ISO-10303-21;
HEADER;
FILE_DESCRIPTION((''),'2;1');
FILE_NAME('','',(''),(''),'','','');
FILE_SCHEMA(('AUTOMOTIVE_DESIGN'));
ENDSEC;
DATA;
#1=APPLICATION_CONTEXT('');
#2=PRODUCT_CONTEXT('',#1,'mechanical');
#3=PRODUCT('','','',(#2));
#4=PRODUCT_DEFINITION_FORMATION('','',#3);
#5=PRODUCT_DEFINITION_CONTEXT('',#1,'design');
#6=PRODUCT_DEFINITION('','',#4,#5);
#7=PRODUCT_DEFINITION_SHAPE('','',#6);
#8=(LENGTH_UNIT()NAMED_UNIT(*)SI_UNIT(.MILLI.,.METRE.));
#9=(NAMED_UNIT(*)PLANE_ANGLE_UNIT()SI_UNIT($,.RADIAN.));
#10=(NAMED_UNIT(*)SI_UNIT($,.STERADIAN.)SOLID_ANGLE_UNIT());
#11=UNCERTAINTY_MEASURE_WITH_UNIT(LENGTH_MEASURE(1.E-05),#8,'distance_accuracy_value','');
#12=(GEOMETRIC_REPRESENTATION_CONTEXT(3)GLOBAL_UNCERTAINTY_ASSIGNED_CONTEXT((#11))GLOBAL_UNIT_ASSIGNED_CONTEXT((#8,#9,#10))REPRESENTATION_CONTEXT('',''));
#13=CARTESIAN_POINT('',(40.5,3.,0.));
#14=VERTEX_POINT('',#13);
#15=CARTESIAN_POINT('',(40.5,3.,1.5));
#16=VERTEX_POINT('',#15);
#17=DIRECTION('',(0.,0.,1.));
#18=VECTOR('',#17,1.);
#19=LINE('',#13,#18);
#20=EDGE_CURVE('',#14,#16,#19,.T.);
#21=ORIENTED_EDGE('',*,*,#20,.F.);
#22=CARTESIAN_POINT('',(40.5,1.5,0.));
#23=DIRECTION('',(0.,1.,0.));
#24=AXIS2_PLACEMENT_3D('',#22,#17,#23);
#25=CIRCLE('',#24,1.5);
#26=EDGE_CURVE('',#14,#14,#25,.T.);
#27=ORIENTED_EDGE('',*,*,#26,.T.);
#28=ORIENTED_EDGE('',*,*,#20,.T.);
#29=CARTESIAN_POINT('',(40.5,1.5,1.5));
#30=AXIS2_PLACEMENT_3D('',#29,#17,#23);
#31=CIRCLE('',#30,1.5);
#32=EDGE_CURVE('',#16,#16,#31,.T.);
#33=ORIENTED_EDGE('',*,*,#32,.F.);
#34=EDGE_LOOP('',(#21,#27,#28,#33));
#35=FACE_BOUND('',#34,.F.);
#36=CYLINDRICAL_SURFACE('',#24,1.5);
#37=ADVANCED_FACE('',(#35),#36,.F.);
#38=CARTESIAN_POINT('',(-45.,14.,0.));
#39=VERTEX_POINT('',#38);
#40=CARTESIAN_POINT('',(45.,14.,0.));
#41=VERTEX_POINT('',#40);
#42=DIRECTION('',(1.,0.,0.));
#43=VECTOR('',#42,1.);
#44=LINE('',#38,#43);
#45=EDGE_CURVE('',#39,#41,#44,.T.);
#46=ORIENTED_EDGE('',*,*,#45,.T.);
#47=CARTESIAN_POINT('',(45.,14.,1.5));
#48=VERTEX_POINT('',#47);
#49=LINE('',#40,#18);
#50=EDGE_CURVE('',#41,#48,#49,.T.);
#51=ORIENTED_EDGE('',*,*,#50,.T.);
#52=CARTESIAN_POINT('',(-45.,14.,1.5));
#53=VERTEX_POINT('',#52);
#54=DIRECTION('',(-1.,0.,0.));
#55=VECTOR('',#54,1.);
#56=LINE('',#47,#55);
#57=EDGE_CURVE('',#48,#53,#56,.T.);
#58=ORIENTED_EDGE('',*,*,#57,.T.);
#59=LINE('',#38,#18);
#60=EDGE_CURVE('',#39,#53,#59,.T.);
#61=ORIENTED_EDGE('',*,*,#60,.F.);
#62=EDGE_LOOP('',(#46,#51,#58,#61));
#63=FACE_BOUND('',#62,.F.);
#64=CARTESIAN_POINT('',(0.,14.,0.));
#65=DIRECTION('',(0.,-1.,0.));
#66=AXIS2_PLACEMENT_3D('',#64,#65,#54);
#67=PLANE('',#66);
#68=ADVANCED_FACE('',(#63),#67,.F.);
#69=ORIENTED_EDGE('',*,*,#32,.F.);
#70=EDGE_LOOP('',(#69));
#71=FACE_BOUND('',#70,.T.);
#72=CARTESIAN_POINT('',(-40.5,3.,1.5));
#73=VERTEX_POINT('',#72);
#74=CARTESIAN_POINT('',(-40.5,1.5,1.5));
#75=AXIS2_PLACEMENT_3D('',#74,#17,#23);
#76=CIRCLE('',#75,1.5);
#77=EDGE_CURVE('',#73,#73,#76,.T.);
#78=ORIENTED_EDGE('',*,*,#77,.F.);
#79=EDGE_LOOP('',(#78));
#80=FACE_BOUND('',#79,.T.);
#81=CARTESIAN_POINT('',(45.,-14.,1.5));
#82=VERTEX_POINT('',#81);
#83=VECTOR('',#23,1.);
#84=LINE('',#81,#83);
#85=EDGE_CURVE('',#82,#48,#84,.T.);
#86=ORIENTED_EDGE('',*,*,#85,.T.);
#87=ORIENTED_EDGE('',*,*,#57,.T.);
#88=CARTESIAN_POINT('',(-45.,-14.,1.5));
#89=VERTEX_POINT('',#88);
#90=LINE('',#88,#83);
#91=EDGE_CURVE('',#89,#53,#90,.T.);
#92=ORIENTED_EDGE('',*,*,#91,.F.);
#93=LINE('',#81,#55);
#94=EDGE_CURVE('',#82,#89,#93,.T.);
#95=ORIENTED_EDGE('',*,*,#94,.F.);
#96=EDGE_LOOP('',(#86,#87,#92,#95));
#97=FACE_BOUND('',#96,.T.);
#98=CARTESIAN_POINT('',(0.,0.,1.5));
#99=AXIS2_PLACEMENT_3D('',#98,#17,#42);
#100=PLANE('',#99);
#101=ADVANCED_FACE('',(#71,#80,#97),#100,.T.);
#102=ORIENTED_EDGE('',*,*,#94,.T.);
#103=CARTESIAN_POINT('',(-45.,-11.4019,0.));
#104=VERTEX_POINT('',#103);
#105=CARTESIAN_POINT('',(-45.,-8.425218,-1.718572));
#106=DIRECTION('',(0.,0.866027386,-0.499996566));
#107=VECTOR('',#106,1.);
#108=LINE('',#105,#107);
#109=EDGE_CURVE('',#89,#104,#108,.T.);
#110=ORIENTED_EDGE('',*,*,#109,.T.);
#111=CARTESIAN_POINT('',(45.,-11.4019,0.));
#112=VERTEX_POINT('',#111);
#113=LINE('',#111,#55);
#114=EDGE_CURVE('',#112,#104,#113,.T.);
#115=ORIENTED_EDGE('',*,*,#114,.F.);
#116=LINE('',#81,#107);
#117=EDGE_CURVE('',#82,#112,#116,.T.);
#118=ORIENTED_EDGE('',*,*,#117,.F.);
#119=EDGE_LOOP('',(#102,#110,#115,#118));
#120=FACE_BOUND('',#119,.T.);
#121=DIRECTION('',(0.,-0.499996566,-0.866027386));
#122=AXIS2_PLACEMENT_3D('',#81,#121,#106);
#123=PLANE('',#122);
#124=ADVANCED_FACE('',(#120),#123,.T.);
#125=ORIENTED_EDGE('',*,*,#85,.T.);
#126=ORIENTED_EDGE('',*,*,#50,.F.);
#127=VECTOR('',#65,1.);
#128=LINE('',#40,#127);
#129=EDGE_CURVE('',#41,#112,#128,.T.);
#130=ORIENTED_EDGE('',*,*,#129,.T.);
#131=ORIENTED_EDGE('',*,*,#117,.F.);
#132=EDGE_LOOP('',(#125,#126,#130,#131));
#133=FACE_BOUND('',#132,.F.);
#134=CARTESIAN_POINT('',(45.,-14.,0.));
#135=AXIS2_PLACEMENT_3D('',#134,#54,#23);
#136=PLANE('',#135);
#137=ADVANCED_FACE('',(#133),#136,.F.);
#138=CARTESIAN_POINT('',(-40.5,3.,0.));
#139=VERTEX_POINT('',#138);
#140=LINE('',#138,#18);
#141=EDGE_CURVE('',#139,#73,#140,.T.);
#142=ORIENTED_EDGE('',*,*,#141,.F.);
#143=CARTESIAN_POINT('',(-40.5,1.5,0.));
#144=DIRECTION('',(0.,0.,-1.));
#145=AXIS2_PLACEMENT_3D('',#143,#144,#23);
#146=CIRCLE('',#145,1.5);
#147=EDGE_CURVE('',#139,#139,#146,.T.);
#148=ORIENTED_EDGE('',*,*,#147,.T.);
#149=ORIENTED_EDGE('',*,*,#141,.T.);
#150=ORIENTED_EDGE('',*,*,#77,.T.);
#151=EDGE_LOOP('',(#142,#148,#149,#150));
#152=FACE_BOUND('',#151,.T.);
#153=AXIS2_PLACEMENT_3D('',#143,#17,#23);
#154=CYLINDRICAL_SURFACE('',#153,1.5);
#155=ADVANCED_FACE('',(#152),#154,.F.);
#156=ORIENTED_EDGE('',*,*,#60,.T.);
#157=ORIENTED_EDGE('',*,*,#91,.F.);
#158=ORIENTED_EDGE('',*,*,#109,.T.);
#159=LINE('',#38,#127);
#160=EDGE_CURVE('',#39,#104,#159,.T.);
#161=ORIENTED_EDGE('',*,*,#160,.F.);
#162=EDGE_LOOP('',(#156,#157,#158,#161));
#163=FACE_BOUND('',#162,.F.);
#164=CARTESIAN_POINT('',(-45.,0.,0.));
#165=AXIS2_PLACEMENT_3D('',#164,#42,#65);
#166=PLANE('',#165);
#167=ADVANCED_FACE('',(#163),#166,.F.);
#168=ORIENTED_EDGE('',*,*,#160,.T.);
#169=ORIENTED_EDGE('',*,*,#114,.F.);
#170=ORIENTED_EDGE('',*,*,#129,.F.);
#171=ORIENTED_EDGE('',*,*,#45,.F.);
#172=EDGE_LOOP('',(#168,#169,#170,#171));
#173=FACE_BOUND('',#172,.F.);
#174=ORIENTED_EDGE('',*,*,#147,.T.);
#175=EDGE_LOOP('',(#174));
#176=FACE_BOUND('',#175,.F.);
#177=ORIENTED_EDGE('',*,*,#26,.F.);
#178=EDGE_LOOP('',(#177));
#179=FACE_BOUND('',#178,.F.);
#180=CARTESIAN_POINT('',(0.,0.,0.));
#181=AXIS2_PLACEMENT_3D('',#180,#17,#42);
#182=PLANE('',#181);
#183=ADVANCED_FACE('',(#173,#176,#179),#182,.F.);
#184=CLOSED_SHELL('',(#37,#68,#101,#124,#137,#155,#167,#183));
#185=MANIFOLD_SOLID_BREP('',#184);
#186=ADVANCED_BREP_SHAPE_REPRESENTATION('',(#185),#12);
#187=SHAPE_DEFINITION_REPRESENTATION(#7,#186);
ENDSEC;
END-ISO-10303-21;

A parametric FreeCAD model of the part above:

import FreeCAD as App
import Part
import Sketcher
from FreeCAD import Vector
Q = App.Units.Quantity


def add_polygon(sketch, points):
    """Adds a closed chain of lines whose ends are joined by coincident constraints."""
    first, n = sketch.GeometryCount, len(points)
    for a, b in zip(points, points[1:] + points[:1]):
        sketch.addGeometry(Part.LineSegment(App.Vector(*a, 0), App.Vector(*b, 0)), False)
    for i in range(n):
        sketch.addConstraint(Sketcher.Constraint("Coincident", first + i, 2, first + (i + 1) % n, 1))

doc = App.newDocument("Part")
body = doc.addObject("PartDesign::Body", "Body")

sketch1 = doc.addObject("Sketcher::SketchObject", "Sketch")
body.addObject(sketch1)
sketch1.AttachmentSupport = (doc.XY_Plane, [""])
sketch1.MapMode = "FlatFace"
add_polygon(sketch1, [(-45, -14), (45, -14), (45, 14), (-45, 14)])
sketch1.addConstraint([
    Sketcher.Constraint("Horizontal", 0),
    Sketcher.Constraint("Vertical", 1),
    Sketcher.Constraint("Horizontal", 2),
    Sketcher.Constraint("Vertical", 3),
    Sketcher.Constraint("Symmetric", 0, 2, 2, 2, -1, 1),
    Sketcher.Constraint("DistanceX", 0, 1, 0, 2, 90.0),
    Sketcher.Constraint("DistanceY", 1, 1, 1, 2, 28.0),
])
pad1 = doc.addObject("PartDesign::Pad", "Pad")
body.addObject(pad1)
pad1.Profile = sketch1
pad1.Length = 1.5

sketch2 = doc.addObject("Sketcher::SketchObject", "Sketch001")
body.addObject(sketch2)
sketch2.AttachmentSupport = (doc.YZ_Plane, [""])
sketch2.MapMode = "FlatFace"
sketch2.AttachmentOffset = App.Placement(Vector(0, 0, 45), App.Rotation())
add_polygon(sketch2, [(-11.4019, 0), (-14, 1.5), (-14, 0)])
sketch2.addConstraint([
    Sketcher.Constraint("Vertical", 1),
    Sketcher.Constraint("Horizontal", 2),
    Sketcher.Constraint("PointOnObject", 1, 2, -1),
    Sketcher.Constraint("Angle", 0, Q("150.0002 deg")),
    Sketcher.Constraint("Distance", 0, 3.0),
    Sketcher.Constraint("DistanceX", 0, 2, -1, 1, 14.0),
])
pocket1 = doc.addObject("PartDesign::Pocket", "Pocket")
body.addObject(pocket1)
pocket1.Profile = sketch2
pocket1.Length = 100

sketch3 = doc.addObject("Sketcher::SketchObject", "Sketch002")
body.addObject(sketch3)
sketch3.AttachmentSupport = (doc.XY_Plane, [""])
sketch3.MapMode = "FlatFace"
sketch3.addGeometry(Part.Circle(Vector(40.5, 1.5, 0), Vector(0, 0, 1), 1.5), False)
sketch3.addConstraint([
    Sketcher.Constraint("Diameter", 0, 3.0),
    Sketcher.Constraint("DistanceX", -1, 1, 0, 3, 40.5),
    Sketcher.Constraint("DistanceY", -1, 1, 0, 3, 1.5),
])
doc.recompute()
hole = doc.addObject("PartDesign::Hole", "Hole")
body.addObject(hole)
hole.Profile = sketch3
hole.ThreadType = "None"
hole.Diameter = 3
hole.DepthType = "Dimension"
hole.Depth = 4
hole.DrillPoint = "Flat"
hole.Reversed = True
doc.recompute()

mirrored = doc.addObject("PartDesign::Mirrored", "Mirrored")
body.addObject(mirrored)
mirrored.Originals = [hole]
mirrored.MirrorPlane = (doc.YZ_Plane, [""])
body.Tip = mirrored

doc.recompute()
